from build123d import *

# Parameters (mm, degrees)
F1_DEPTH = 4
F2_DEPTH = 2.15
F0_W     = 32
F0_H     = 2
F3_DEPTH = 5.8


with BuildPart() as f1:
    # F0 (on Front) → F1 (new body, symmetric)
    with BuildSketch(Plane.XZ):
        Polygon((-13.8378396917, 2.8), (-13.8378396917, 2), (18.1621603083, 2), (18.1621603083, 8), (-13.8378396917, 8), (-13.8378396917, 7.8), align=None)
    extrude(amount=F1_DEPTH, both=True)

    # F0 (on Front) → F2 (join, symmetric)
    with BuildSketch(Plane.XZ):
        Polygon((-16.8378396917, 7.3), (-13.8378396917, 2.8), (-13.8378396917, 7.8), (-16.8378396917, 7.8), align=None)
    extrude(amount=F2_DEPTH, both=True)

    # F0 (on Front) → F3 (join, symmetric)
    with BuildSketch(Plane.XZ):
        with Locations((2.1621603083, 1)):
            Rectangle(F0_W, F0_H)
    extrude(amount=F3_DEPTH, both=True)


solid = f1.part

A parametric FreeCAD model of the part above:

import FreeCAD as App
import Part
import Sketcher

V = App.Vector

doc = App.newDocument("Part")
params = doc.addObject("Spreadsheet::Sheet", "Params")
for row, (alias, value) in enumerate([
    ("sketch1_width", "32 mm"),
    ("sketch1_height", "6 mm"),
    ("pad1_length", "8 mm"),
    ("sketch2_width", "3 mm"),
    ("sketch2_height", "5 mm"),
    ("sketch2_height2", "0.5 mm"),
    ("pad2_length", "4.3 mm"),
    ("sketch3_width", "32 mm"),
    ("sketch3_height", "2 mm"),
    ("pad3_length", "11.6 mm"),
], start=1):
    params.set(f"A{row}", alias)
    params.set(f"B{row}", "=" + value)
    params.setAlias(f"B{row}", alias)

body = doc.addObject("PartDesign::Body", "Body")

# Sketch on XZ plane
sketch1 = body.newObject("Sketcher::SketchObject", "Sketch")
sketch1.AttachmentSupport = (doc.getObject("XZ_Plane"), [""])
sketch1.MapMode = "FlatFace"
sketch1.addGeometry([
    Part.LineSegment(V(-13.83784, 2, 0), V(18.16216, 2, 0)),
    Part.LineSegment(V(18.16216, 2, 0), V(18.16216, 8, 0)),
    Part.LineSegment(V(18.16216, 8, 0), V(-13.83784, 8, 0)),
    Part.LineSegment(V(-13.83784, 8, 0), V(-13.83784, 2, 0)),
], False)
sketch1.addConstraint([
    Sketcher.Constraint("Coincident", 0, 2, 1, 1),
    Sketcher.Constraint("Coincident", 1, 2, 2, 1),
    Sketcher.Constraint("Coincident", 2, 2, 3, 1),
    Sketcher.Constraint("Coincident", 3, 2, 0, 1),
    Sketcher.Constraint("Horizontal", 0),
    Sketcher.Constraint("Vertical", 1),
    Sketcher.Constraint("Horizontal", 2),
    Sketcher.Constraint("Vertical", 3),
    Sketcher.Constraint("DistanceX", 0, 1, 0, 2, 32.0),
    Sketcher.Constraint("DistanceY", 1, 1, 1, 2, 6.0),
    Sketcher.Constraint("DistanceY", -1, 1, 0, 2, 2.0),
    Sketcher.Constraint("DistanceX", -1, 1, 0, 2, 18.16216),
])
sketch1.setExpression("Constraints[8]", "Params.sketch1_width")
sketch1.setExpression("Constraints[9]", "Params.sketch1_height")
pad1 = body.newObject("PartDesign::Pad", "Pad")
pad1.Profile = sketch1
pad1.setExpression("Length", "Params.pad1_length")
pad1.Midplane = True

# Sketch on XZ plane
sketch2 = body.newObject("Sketcher::SketchObject", "Sketch001")
sketch2.AttachmentSupport = (doc.getObject("XZ_Plane"), [""])
sketch2.MapMode = "FlatFace"
sketch2.addGeometry([
    Part.LineSegment(V(-16.83784, 7.3, 0), V(-13.83784, 2.8, 0)),
    Part.LineSegment(V(-13.83784, 2.8, 0), V(-13.83784, 7.8, 0)),
    Part.LineSegment(V(-13.83784, 7.8, 0), V(-16.83784, 7.8, 0)),
    Part.LineSegment(V(-16.83784, 7.8, 0), V(-16.83784, 7.3, 0)),
], False)
sketch2.addConstraint([
    Sketcher.Constraint("Coincident", 0, 2, 1, 1),
    Sketcher.Constraint("Coincident", 1, 2, 2, 1),
    Sketcher.Constraint("Coincident", 2, 2, 3, 1),
    Sketcher.Constraint("Coincident", 3, 2, 0, 1),
    Sketcher.Constraint("Vertical", 1),
    Sketcher.Constraint("Horizontal", 2),
    Sketcher.Constraint("Vertical", 3),
    Sketcher.Constraint("DistanceX", 2, 2, 2, 1, 3.0),
    Sketcher.Constraint("DistanceY", 1, 1, 1, 2, 5.0),
    Sketcher.Constraint("DistanceY", 3, 2, 3, 1, 0.5),
    Sketcher.Constraint("DistanceY", -1, 1, 0, 2, 2.8),
    Sketcher.Constraint("DistanceX", 0, 2, -1, 1, 13.83784),
])
sketch2.setExpression("Constraints[7]", "Params.sketch2_width")
sketch2.setExpression("Constraints[8]", "Params.sketch2_height")
sketch2.setExpression("Constraints[9]", "Params.sketch2_height2")
pad2 = body.newObject("PartDesign::Pad", "Pad001")
pad2.Profile = sketch2
pad2.setExpression("Length", "Params.pad2_length")
pad2.Midplane = True

# Sketch on XZ plane
sketch3 = body.newObject("Sketcher::SketchObject", "Sketch002")
sketch3.AttachmentSupport = (doc.getObject("XZ_Plane"), [""])
sketch3.MapMode = "FlatFace"
sketch3.addGeometry([
    Part.LineSegment(V(-13.83784, 2, 0), V(-13.83784, 0, 0)),
    Part.LineSegment(V(-13.83784, 0, 0), V(18.16216, 0, 0)),
    Part.LineSegment(V(18.16216, 0, 0), V(18.16216, 2, 0)),
    Part.LineSegment(V(18.16216, 2, 0), V(-13.83784, 2, 0)),
], False)
sketch3.addConstraint([
    Sketcher.Constraint("Coincident", 0, 2, 1, 1),
    Sketcher.Constraint("Coincident", 1, 2, 2, 1),
    Sketcher.Constraint("Coincident", 2, 2, 3, 1),
    Sketcher.Constraint("Coincident", 3, 2, 0, 1),
    Sketcher.Constraint("Vertical", 0),
    Sketcher.Constraint("Horizontal", 1),
    Sketcher.Constraint("Vertical", 2),
    Sketcher.Constraint("Horizontal", 3),
    Sketcher.Constraint("PointOnObject", 0, 2, -1),
    Sketcher.Constraint("DistanceX", 1, 1, 1, 2, 32.0),
    Sketcher.Constraint("DistanceY", 0, 2, 0, 1, 2.0),
    Sketcher.Constraint("DistanceX", 0, 2, -1, 1, 13.83784),
])
sketch3.setExpression("Constraints[9]", "Params.sketch3_width")
sketch3.setExpression("Constraints[10]", "Params.sketch3_height")
pad3 = body.newObject("PartDesign::Pad", "Pad002")
pad3.Profile = sketch3
pad3.setExpression("Length", "Params.pad3_length")
pad3.Midplane = True

doc.recompute()
